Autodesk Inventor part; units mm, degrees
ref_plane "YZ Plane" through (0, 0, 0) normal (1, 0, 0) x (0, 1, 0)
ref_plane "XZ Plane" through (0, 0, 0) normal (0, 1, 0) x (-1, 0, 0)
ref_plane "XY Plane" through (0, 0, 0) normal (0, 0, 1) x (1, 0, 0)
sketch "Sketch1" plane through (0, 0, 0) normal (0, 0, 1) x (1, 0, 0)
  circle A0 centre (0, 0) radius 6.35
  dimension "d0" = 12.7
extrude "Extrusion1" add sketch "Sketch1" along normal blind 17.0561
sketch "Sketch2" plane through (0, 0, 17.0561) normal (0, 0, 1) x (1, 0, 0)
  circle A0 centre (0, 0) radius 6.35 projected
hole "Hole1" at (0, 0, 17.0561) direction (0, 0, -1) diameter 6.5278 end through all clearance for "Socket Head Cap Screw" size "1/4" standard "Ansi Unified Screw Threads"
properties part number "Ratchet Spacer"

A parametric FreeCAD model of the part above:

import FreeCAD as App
import Part
import Sketcher
Q = App.Units.Quantity

doc = App.newDocument("Part")
params = doc.addObject("Spreadsheet::Sheet", "Params")
for row, (alias, value) in enumerate([
    ("sketch1_diameter", "0.5 in"),
    ("pad1_length", "0.6715 in"),
    ("sketch2_diameter", "0.257 in"),
    ("hole_diameter", "0.257 in"),
], start=1):
    params.set(f"A{row}", alias)
    params.set(f"B{row}", "=" + value)
    params.setAlias(f"B{row}", alias)

body = doc.addObject("PartDesign::Body", "Body")

sketch1 = body.newObject("Sketcher::SketchObject", "Sketch")
sketch1.AttachmentSupport = (doc.getObject("XY_Plane"), [""])
sketch1.MapMode = "FlatFace"
sketch1.addGeometry(Part.Circle(App.Vector(0, 0, 0), App.Vector(0, 0, 1), 6), False)
sketch1.addConstraint(Sketcher.Constraint("Coincident", 0, 3, -1, 1))
sketch1.addConstraint(Sketcher.Constraint("Diameter", 0, Q("0.5 in")))
sketch1.setExpression("Constraints[1]", "Params.sketch1_diameter")
pad1 = body.newObject("PartDesign::Pad", "Pad")
pad1.Profile = sketch1
pad1.setExpression("Length", "Params.pad1_length")

sketch2 = body.newObject("Sketcher::SketchObject", "Sketch001")
sketch2.AttachmentSupport = (doc.getObject("XY_Plane"), [""])
sketch2.MapMode = "FlatFace"
sketch2.AttachmentOffset = App.Placement(App.Vector(0, 0, 0.6715 * 25.4), App.Rotation())
sketch2.addGeometry(Part.Circle(App.Vector(0, 0, 0), App.Vector(0, 0, 1), 3.3), False)
sketch2.addConstraint(Sketcher.Constraint("Coincident", 0, 3, -1, 1))
sketch2.addConstraint(Sketcher.Constraint("Diameter", 0, Q("0.257 in")))
sketch2.setExpression("Constraints[1]", "Params.sketch2_diameter")
doc.recompute()
hole = body.newObject("PartDesign::Hole", "Hole")
hole.Profile = sketch2
hole.ThreadType = "None"
hole.setExpression("Diameter", "Params.hole_diameter")
hole.DepthType = "ThroughAll"

doc.recompute()
